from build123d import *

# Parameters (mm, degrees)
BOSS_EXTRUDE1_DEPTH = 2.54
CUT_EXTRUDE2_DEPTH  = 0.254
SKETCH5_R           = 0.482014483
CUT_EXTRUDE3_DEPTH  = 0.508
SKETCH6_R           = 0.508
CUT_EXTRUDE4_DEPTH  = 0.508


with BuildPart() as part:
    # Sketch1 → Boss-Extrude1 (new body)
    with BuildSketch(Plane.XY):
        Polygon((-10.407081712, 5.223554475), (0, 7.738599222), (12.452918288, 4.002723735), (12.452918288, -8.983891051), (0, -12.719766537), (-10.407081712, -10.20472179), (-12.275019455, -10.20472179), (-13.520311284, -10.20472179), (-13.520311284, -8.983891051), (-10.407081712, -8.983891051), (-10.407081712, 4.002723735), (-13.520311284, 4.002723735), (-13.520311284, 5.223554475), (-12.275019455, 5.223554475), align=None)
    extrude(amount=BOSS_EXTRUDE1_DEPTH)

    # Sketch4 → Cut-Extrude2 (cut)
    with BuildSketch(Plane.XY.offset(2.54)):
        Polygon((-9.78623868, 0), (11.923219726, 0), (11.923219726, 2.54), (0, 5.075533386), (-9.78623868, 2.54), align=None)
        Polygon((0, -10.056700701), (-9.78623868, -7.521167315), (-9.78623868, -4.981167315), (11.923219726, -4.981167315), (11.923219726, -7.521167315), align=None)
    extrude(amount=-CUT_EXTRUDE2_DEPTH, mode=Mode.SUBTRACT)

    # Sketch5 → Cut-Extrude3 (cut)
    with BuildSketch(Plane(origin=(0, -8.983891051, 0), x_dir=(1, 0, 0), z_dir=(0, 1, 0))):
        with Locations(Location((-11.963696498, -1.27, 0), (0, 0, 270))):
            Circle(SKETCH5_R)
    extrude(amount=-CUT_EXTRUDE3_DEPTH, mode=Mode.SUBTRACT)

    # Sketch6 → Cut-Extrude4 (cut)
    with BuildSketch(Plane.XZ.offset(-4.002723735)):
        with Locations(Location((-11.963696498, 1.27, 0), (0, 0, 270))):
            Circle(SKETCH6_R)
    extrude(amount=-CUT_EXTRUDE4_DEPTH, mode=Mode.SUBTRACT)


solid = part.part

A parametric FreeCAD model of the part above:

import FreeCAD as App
import Part
import Sketcher

V = App.Vector
Q = App.Units.Quantity

doc = App.newDocument("Part")
body = doc.addObject("PartDesign::Body", "Body")

# Sketch on XY plane
sketch1 = body.newObject("Sketcher::SketchObject", "Sketch")
sketch1.AttachmentSupport = (doc.getObject("XY_Plane"), [""])
sketch1.MapMode = "FlatFace"
sketch1.addGeometry([
    Part.LineSegment(V(0, 7.7, 0), V(-10.4, 5.2, 0)),  # 0
    Part.LineSegment(V(-10.4, 5.2, 0), V(-13.5, 5.2, 0)),  # 1
    Part.LineSegment(V(-13.5, 5.2, 0), V(-13.5, 4, 0)),  # 2
    Part.LineSegment(V(-13.5, 4, 0), V(-10.4, 4, 0)),  # 3
    Part.LineSegment(V(-10.4, 4, 0), V(-10.4, -9, 0)),  # 4
    Part.LineSegment(V(-10.4, -9, 0), V(-13.5, -9, 0)),  # 5
    Part.LineSegment(V(-13.5, -9, 0), V(-13.5, -10.2, 0)),  # 6
    Part.LineSegment(V(-13.5, -10.2, 0), V(-10.4, -10.2, 0)),  # 7
    Part.LineSegment(V(-10.4, -10.2, 0), V(0, -12.7, 0)),  # 8
    Part.LineSegment(V(0, -12.7, 0), V(12.5, -9, 0)),  # 9
    Part.LineSegment(V(12.5, -9, 0), V(12.5, 4, 0)),  # 10
    Part.LineSegment(V(12.5, 4, 0), V(0, 7.7, 0)),  # 11
], False)
sketch1.addConstraint([
    Sketcher.Constraint("Coincident", 0, 2, 1, 1),
    Sketcher.Constraint("Coincident", 1, 2, 2, 1),
    Sketcher.Constraint("Coincident", 2, 2, 3, 1),
    Sketcher.Constraint("Coincident", 3, 2, 4, 1),
    Sketcher.Constraint("Coincident", 4, 2, 5, 1),
    Sketcher.Constraint("Coincident", 5, 2, 6, 1),
    Sketcher.Constraint("Coincident", 6, 2, 7, 1),
    Sketcher.Constraint("Coincident", 7, 2, 8, 1),
    Sketcher.Constraint("Coincident", 8, 2, 9, 1),
    Sketcher.Constraint("Coincident", 9, 2, 10, 1),
    Sketcher.Constraint("Coincident", 10, 2, 11, 1),
    Sketcher.Constraint("Coincident", 11, 2, 0, 1),
    Sketcher.Constraint("Horizontal", 1),
    Sketcher.Constraint("Vertical", 2),
    Sketcher.Constraint("Horizontal", 3),
    Sketcher.Constraint("Vertical", 4),
    Sketcher.Constraint("Horizontal", 5),
    Sketcher.Constraint("Vertical", 6),
    Sketcher.Constraint("Horizontal", 7),
    Sketcher.Constraint("Vertical", 10),
    Sketcher.Constraint("PointOnObject", 8, 2, -2),
    Sketcher.Constraint("PointOnObject", 11, 2, -2),
    Sketcher.Constraint("Horizontal", 5, 2, 9, 2),
    Sketcher.Constraint("Horizontal", 3, 2, 10, 2),
    Sketcher.Constraint("Vertical", 0, 2, 3, 2),
    Sketcher.Constraint("Vertical", 2, 2, 5, 2),
    Sketcher.Constraint("Vertical", 4, 2, 7, 2),
    Sketcher.Constraint("Equal", 2, 6),
    Sketcher.Constraint("Equal", 0, 8),
    Sketcher.Constraint("DistanceX", 4, 2, 9, 2, Q("0.9 in")),
    Sketcher.Constraint("DistanceX", 1, 2, 1, 1, 3.11323),
    Sketcher.Constraint("DistanceY", 2, 2, 2, 1, 1.220831),
    Sketcher.Constraint("DistanceY", -1, 1, 11, 2, 7.738599),
    Sketcher.Constraint("Distance", 0, 10.706671),
    Sketcher.Constraint("Distance", 9, 13.001228),
    Sketcher.Constraint("DistanceY", 4, 2, 4, 1, 12.986615),
])
pad1 = body.newObject("PartDesign::Pad", "Pad")
pad1.Profile = sketch1
pad1.Length = Q("0.1 in")

# Sketch on XY plane
sketch2 = body.newObject("Sketcher::SketchObject", "Sketch001")
sketch2.AttachmentSupport = (doc.getObject("XY_Plane"), [""])
sketch2.MapMode = "FlatFace"
sketch2.AttachmentOffset = App.Placement(V(0, 0, 0.1 * 25.4), App.Rotation())
sketch2.addGeometry([
    Part.LineSegment(V(-9.8, 0, 0), V(11.9, 0, 0)),  # 0
    Part.LineSegment(V(11.9, 0, 0), V(11.9, 2.5, 0)),  # 1
    Part.LineSegment(V(11.9, 2.5, 0), V(0, 5.1, 0)),  # 2
    Part.LineSegment(V(0, 5.1, 0), V(-9.8, 2.5, 0)),  # 3
    Part.LineSegment(V(-9.8, 2.5, 0), V(-9.8, 0, 0)),  # 4
    Part.LineSegment(V(-9.8, -7.5, 0), V(0, -10.1, 0)),  # 5
    Part.LineSegment(V(0, -10.1, 0), V(11.9, -7.5, 0)),  # 6
    Part.LineSegment(V(11.9, -7.5, 0), V(11.9, -5, 0)),  # 7
    Part.LineSegment(V(11.9, -5, 0), V(-9.8, -5, 0)),  # 8
    Part.LineSegment(V(-9.8, -5, 0), V(-9.8, -7.5, 0)),  # 9
], False)
sketch2.addConstraint([
    Sketcher.Constraint("Coincident", 0, 2, 1, 1),
    Sketcher.Constraint("Coincident", 1, 2, 2, 1),
    Sketcher.Constraint("Coincident", 2, 2, 3, 1),
    Sketcher.Constraint("Coincident", 3, 2, 4, 1),
    Sketcher.Constraint("Coincident", 4, 2, 0, 1),
    Sketcher.Constraint("Coincident", 5, 2, 6, 1),
    Sketcher.Constraint("Coincident", 6, 2, 7, 1),
    Sketcher.Constraint("Coincident", 7, 2, 8, 1),
    Sketcher.Constraint("Coincident", 8, 2, 9, 1),
    Sketcher.Constraint("Coincident", 9, 2, 5, 1),
    Sketcher.Constraint("Horizontal", 0),
    Sketcher.Constraint("Vertical", 1),
    Sketcher.Constraint("Vertical", 4),
    Sketcher.Constraint("Vertical", 7),
    Sketcher.Constraint("Horizontal", 8),
    Sketcher.Constraint("Vertical", 9),
    Sketcher.Constraint("PointOnObject", 0, 2, -1),
    Sketcher.Constraint("PointOnObject", 2, 2, -2),
    Sketcher.Constraint("PointOnObject", 5, 2, -2),
    Sketcher.Constraint("Horizontal", 1, 2, 3, 2),
    Sketcher.Constraint("Horizontal", 6, 2, 9, 2),
    Sketcher.Constraint("Vertical", 1, 2, 6, 2),
    Sketcher.Constraint("Vertical", 4, 2, 8, 2),
    Sketcher.Constraint("Equal", 4, 7),
    Sketcher.Constraint("Equal", 3, 5),
    Sketcher.Constraint("DistanceY", 1, 1, 1, 2, Q("0.1 in")),
    Sketcher.Constraint("DistanceX", 0, 1, 0, 2, 21.709458),
    Sketcher.Constraint("DistanceY", 5, 2, -1, 1, 10.056701),
    Sketcher.Constraint("Distance", 3, 10.109372),
    Sketcher.Constraint("DistanceX", -1, 1, 0, 2, 11.92322),
])
pocket1 = body.newObject("PartDesign::Pocket", "Pocket")
pocket1.Profile = sketch2
pocket1.Length = Q("0.01 in")

# Sketch on XZ plane
sketch3 = body.newObject("Sketcher::SketchObject", "Sketch002")
sketch3.AttachmentSupport = (doc.getObject("XZ_Plane"), [""])
sketch3.MapMode = "FlatFace"
sketch3.AttachmentOffset = App.Placement(V(0, 0, 8.983891), App.Rotation())
sketch3.addGeometry(Part.Circle(V(-11.96, 1.27, 0), V(0, 0, 1), 0.48), False)
sketch3.addConstraint([
    Sketcher.Constraint("DistanceY", -1, 1, 0, 3, Q("0.05 in")),
    Sketcher.Constraint("Diameter", 0, 0.964029),
    Sketcher.Constraint("DistanceX", 0, 3, -1, 1, 11.963696),
])
pocket2 = body.newObject("PartDesign::Pocket", "Pocket001")
pocket2.Profile = sketch3
pocket2.Length = Q("0.02 in")
pocket2.Reversed = True

# Sketch on XZ plane
sketch4 = body.newObject("Sketcher::SketchObject", "Sketch003")
sketch4.AttachmentSupport = (doc.getObject("XZ_Plane"), [""])
sketch4.MapMode = "FlatFace"
sketch4.AttachmentOffset = App.Placement(V(0, 0, -4.002724), App.Rotation())
sketch4.addGeometry(Part.Circle(V(-12, 1.3, 0), V(0, 0, 1), 0.5), False)
sketch4.addConstraint([
    Sketcher.Constraint("Diameter", 0, Q("0.04 in")),
    Sketcher.Constraint("DistanceY", -1, 1, 0, 3, Q("0.05 in")),
    Sketcher.Constraint("DistanceX", 0, 3, -1, 1, 11.963696),
])
pocket3 = body.newObject("PartDesign::Pocket", "Pocket002")
pocket3.Profile = sketch4
pocket3.Length = Q("0.02 in")

doc.recompute()
